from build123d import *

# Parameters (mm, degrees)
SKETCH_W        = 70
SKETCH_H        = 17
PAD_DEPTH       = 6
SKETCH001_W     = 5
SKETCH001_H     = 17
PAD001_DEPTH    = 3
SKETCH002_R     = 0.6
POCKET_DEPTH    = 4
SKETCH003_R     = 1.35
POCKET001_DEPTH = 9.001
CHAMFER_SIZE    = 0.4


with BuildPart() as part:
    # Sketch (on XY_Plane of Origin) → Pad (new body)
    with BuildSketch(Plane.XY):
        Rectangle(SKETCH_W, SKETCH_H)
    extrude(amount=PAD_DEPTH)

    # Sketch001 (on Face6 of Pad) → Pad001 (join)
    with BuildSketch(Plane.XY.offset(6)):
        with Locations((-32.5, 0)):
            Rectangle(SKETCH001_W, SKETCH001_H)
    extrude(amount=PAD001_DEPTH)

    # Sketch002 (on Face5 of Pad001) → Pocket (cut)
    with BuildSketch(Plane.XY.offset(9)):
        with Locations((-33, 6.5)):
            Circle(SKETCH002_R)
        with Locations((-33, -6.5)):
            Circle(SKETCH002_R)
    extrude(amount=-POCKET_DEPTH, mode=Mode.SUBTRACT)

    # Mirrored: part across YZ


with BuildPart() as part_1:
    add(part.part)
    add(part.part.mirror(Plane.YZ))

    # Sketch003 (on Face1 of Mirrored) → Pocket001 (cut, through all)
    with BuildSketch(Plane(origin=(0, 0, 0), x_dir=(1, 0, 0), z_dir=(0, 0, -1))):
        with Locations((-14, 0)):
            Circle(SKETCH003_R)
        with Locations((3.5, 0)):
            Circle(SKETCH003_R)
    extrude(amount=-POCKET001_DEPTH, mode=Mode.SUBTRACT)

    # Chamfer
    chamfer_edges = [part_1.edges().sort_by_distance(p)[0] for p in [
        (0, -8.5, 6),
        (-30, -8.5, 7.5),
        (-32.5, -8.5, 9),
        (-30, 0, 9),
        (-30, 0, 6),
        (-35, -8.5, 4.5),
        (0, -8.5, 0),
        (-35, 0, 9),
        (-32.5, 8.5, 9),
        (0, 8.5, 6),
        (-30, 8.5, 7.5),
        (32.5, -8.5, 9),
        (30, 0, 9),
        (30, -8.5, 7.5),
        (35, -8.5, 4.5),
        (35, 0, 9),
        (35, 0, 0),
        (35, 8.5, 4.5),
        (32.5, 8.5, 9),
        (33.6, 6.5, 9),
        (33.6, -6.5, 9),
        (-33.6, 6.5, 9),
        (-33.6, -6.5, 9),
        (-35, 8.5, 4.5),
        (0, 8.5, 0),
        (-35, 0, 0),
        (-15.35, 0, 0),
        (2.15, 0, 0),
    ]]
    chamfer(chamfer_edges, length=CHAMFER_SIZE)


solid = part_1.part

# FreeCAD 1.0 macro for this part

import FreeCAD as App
import Part
import Sketcher

V = App.Vector


def edges_at(feature, points):
    """Names of the edges that pass closest to the given points."""
    edges = feature.Shape.Edges
    near = lambda p: min(range(len(edges)), key=lambda i: edges[i].distToShape(Part.Vertex(*p))[0])
    return sorted({f"Edge{near(p) + 1}" for p in points})

doc = App.newDocument("Part")
body = doc.addObject("PartDesign::Body", "Body")

sketch1 = doc.addObject("Sketcher::SketchObject", "Sketch")
body.addObject(sketch1)
sketch1.AttachmentSupport = (doc.XY_Plane, [""])
sketch1.MapMode = "FlatFace"
sketch1.addGeometry([
    Part.LineSegment(V(-35, 8, 0), V(-35, -8, 0)),
    Part.LineSegment(V(-35, -8, 0), V(35, -8, 0)),
    Part.LineSegment(V(35, -8, 0), V(35, 8, 0)),
    Part.LineSegment(V(35, 8, 0), V(-35, 8, 0)),
], False)
sketch1.addConstraint([
    Sketcher.Constraint("Coincident", 0, 2, 1, 1),
    Sketcher.Constraint("Coincident", 1, 2, 2, 1),
    Sketcher.Constraint("Coincident", 2, 2, 3, 1),
    Sketcher.Constraint("Coincident", 3, 2, 0, 1),
    Sketcher.Constraint("Vertical", 0),
    Sketcher.Constraint("Horizontal", 1),
    Sketcher.Constraint("Vertical", 2),
    Sketcher.Constraint("Horizontal", 3),
    Sketcher.Constraint("Symmetric", 0, 2, 2, 2, -1, 1),
    Sketcher.Constraint("DistanceX", 1, 1, 1, 2, 70.0),
    Sketcher.Constraint("DistanceY", 0, 2, 0, 1, 17.0),
])
pad1 = doc.addObject("PartDesign::Pad", "Pad")
body.addObject(pad1)
pad1.Profile = sketch1
pad1.Length = 6

sketch2 = doc.addObject("Sketcher::SketchObject", "Sketch001")
body.addObject(sketch2)
sketch2.AttachmentSupport = (doc.XY_Plane, [""])
sketch2.MapMode = "FlatFace"
sketch2.AttachmentOffset = App.Placement(V(0, 0, 6), App.Rotation())
sketch2.addGeometry([
    Part.LineSegment(V(-35, 8, 0), V(-35, -8, 0)),
    Part.LineSegment(V(-35, -8, 0), V(-30, -8, 0)),
    Part.LineSegment(V(-30, -8, 0), V(-30, 8, 0)),
    Part.LineSegment(V(-30, 8, 0), V(-35, 8, 0)),
], False)
sketch2.addConstraint([
    Sketcher.Constraint("Coincident", 0, 2, 1, 1),
    Sketcher.Constraint("Coincident", 1, 2, 2, 1),
    Sketcher.Constraint("Coincident", 2, 2, 3, 1),
    Sketcher.Constraint("Coincident", 3, 2, 0, 1),
    Sketcher.Constraint("Vertical", 0),
    Sketcher.Constraint("Horizontal", 1),
    Sketcher.Constraint("Vertical", 2),
    Sketcher.Constraint("Horizontal", 3),
    Sketcher.Constraint("DistanceX", 1, 1, 1, 2, 5.0),
    Sketcher.Constraint("DistanceY", 0, 2, 0, 1, 17.0),
    Sketcher.Constraint("DistanceX", 0, 2, -1, 1, 35.0),
    Sketcher.Constraint("DistanceY", 0, 2, -1, 1, 8.5),
])
pad2 = doc.addObject("PartDesign::Pad", "Pad001")
body.addObject(pad2)
pad2.Profile = sketch2
pad2.Length = 3

sketch3 = doc.addObject("Sketcher::SketchObject", "Sketch002")
body.addObject(sketch3)
sketch3.AttachmentSupport = (doc.XY_Plane, [""])
sketch3.MapMode = "FlatFace"
sketch3.AttachmentOffset = App.Placement(V(0, 0, 9), App.Rotation())
sketch3.addGeometry([
    Part.Circle(V(-33, 6.5, 0), V(0, 0, 1), 0.6),
    Part.Circle(V(-33, -6.5, 0), V(0, 0, 1), 0.6),
], False)
sketch3.addConstraint([
    Sketcher.Constraint("Equal", 0, 1),
    Sketcher.Constraint("Symmetric", 0, 3, 1, 3, -1),
    Sketcher.Constraint("Diameter", 0, 1.2),
    Sketcher.Constraint("DistanceX", 0, 3, -1, 1, 33.0),
    Sketcher.Constraint("DistanceY", 1, 3, 0, 3, 13.0),
])
pocket1 = doc.addObject("PartDesign::Pocket", "Pocket")
body.addObject(pocket1)
pocket1.Profile = sketch3
pocket1.Length = 4
body2 = doc.addObject("PartDesign::Body", "Body001")
doc.recompute()

body2.BaseFeature = body
doc.recompute()

mirroring = doc.addObject("Part::Mirroring", "Mirroring")
mirroring.Source = body
mirroring.Base = V(0, 0, 0)
mirroring.Normal = V(1, 0, 0)
body3 = doc.addObject("PartDesign::Body", "Body002")
body3.BaseFeature = mirroring
boolean = doc.addObject("PartDesign::Boolean", "Boolean")
body2.addObject(boolean)
boolean.Type = "Fuse"
boolean.addObjects([body3])
doc.recompute()

sketch4 = doc.addObject("Sketcher::SketchObject", "Sketch003")
body2.addObject(sketch4)
sketch4.AttachmentSupport = (doc.getObject("XY_Plane001"), [""])
sketch4.MapMode = "FlatFace"
sketch4.addGeometry([
    Part.Circle(V(-14, 0, 0), V(0, 0, 1), 1.4),
    Part.Circle(V(3.5, 0, 0), V(0, 0, 1), 1.4),
], False)
sketch4.addConstraint([
    Sketcher.Constraint("Equal", 0, 1),
    Sketcher.Constraint("PointOnObject", 0, 3, -1),
    Sketcher.Constraint("PointOnObject", 1, 3, -1),
    Sketcher.Constraint("Diameter", 0, 2.7),
    Sketcher.Constraint("DistanceX", 0, 3, -1, 1, 14.0),
    Sketcher.Constraint("DistanceX", -1, 1, 1, 3, 3.5),
])
pocket2 = doc.addObject("PartDesign::Pocket", "Pocket001")
body2.addObject(pocket2)
pocket2.Profile = sketch4
pocket2.Type = "ThroughAll"
pocket2.Reversed = True
doc.recompute()

chamfer = doc.addObject("PartDesign::Chamfer", "Chamfer")
body2.addObject(chamfer)
chamfer.Base = (pocket2, edges_at(pocket2, [
    (0, -8.5, 6),
    (-30, -8.5, 7.5),
    (-32.5, -8.5, 9),
    (-30, 0, 9),
    (-30, 0, 6),
    (-35, -8.5, 4.5),
    (0, -8.5, 0),
    (-35, 0, 9),
    (-32.5, 8.5, 9),
    (0, 8.5, 6),
    (-30, 8.5, 7.5),
    (32.5, -8.5, 9),
    (30, 0, 9),
    (30, -8.5, 7.5),
    (35, -8.5, 4.5),
    (35, 0, 9),
    (35, 0, 0),
    (35, 8.5, 4.5),
    (32.5, 8.5, 9),
    (33.6, 6.5, 9),
    (33.6, -6.5, 9),
    (-33.6, 6.5, 9),
    (-33.6, -6.5, 9),
    (-35, 8.5, 4.5),
    (0, 8.5, 0),
    (-35, 0, 0),
    (-15.35, 0, 0),
    (2.15, 0, 0),
]))
chamfer.Size = 0.4
mirroring.Visibility = False

doc.recompute()
